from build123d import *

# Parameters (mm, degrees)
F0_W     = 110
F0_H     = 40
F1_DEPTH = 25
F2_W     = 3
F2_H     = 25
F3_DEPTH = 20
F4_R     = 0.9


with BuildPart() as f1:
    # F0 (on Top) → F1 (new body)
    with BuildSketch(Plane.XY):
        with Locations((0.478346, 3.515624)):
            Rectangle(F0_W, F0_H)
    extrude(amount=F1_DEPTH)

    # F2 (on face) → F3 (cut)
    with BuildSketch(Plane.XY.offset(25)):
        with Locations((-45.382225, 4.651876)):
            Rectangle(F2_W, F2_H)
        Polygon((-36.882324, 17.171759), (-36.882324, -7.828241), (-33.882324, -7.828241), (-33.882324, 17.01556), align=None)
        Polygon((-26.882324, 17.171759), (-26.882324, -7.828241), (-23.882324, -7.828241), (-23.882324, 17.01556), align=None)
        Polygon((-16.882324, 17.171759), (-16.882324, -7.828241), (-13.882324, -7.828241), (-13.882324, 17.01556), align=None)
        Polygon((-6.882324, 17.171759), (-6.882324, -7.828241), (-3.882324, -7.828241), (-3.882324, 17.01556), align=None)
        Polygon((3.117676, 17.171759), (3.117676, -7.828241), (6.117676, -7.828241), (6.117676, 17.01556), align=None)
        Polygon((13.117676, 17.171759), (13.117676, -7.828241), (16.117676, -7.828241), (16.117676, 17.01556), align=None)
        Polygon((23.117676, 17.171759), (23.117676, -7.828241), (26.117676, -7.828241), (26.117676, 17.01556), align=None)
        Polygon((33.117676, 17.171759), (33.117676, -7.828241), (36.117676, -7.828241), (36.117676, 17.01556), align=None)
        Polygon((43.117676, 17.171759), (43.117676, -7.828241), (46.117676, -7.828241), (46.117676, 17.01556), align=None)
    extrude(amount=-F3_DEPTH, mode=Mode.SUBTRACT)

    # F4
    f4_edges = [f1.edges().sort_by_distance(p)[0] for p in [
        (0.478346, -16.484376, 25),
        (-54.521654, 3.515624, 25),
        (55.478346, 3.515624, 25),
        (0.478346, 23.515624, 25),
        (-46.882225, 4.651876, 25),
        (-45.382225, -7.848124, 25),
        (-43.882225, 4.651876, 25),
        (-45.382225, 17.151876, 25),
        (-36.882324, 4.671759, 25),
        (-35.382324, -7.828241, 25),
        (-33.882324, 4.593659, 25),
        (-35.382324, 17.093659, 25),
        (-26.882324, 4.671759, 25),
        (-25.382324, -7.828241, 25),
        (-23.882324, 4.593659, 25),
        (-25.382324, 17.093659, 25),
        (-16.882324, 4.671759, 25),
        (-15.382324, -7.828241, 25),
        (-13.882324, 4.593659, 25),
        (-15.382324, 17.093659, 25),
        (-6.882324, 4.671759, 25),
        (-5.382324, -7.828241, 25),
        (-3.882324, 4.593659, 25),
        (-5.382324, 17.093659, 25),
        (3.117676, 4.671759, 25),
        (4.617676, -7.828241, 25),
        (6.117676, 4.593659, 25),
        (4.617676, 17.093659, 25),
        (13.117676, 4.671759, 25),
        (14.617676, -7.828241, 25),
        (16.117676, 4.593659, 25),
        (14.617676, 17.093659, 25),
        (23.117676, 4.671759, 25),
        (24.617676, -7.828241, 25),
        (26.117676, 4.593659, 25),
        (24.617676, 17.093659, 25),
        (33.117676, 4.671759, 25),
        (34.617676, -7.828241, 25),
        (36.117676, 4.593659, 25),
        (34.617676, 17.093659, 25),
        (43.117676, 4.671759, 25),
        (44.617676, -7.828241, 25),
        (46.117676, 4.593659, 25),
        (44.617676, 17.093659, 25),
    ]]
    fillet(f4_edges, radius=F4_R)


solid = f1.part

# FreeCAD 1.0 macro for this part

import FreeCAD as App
import Part
import Sketcher
from FreeCAD import Vector
Q = App.Units.Quantity


def edges_at(feature, points):
    """Names of the edges that pass closest to the given points."""
    edges = feature.Shape.Edges
    near = lambda p: min(range(len(edges)), key=lambda i: edges[i].distToShape(Part.Vertex(*p))[0])
    return sorted({f"Edge{near(p) + 1}" for p in points})

doc = App.newDocument("Part")
body = doc.addObject("PartDesign::Body", "Body")

# Sketch on XY plane
sketch1 = body.newObject("Sketcher::SketchObject", "Sketch")
sketch1.AttachmentSupport = (doc.getObject("XY_Plane"), [""])
sketch1.MapMode = "FlatFace"
sketch1.addGeometry([
    Part.LineSegment(Vector(-55, 24, 0), Vector(-55, -16, 0)),
    Part.LineSegment(Vector(-55, -16, 0), Vector(55, -16, 0)),
    Part.LineSegment(Vector(55, -16, 0), Vector(55, 24, 0)),
    Part.LineSegment(Vector(55, 24, 0), Vector(-55, 24, 0)),
], False)
sketch1.addConstraint([
    Sketcher.Constraint("Coincident", 0, 2, 1, 1),
    Sketcher.Constraint("Coincident", 1, 2, 2, 1),
    Sketcher.Constraint("Coincident", 2, 2, 3, 1),
    Sketcher.Constraint("Coincident", 3, 2, 0, 1),
    Sketcher.Constraint("Vertical", 0),
    Sketcher.Constraint("Horizontal", 1),
    Sketcher.Constraint("Vertical", 2),
    Sketcher.Constraint("Horizontal", 3),
    Sketcher.Constraint("DistanceX", 1, 1, 1, 2, Q("110 mm")),
    Sketcher.Constraint("DistanceY", 0, 2, 0, 1, Q("40 mm")),
    Sketcher.Constraint("DistanceX", 0, 2, -1, 1, Q("54.521654 mm")),
    Sketcher.Constraint("DistanceY", 0, 2, -1, 1, Q("16.484376 mm")),
])
pad1 = body.newObject("PartDesign::Pad", "Pad")
pad1.Profile = sketch1
pad1.Length = 25

# Sketch on XY plane
sketch2 = body.newObject("Sketcher::SketchObject", "Sketch001")
sketch2.AttachmentSupport = (doc.getObject("XY_Plane"), [""])
sketch2.MapMode = "FlatFace"
sketch2.AttachmentOffset = App.Placement(Vector(0, 0, 25), App.Rotation())
sketch2.addGeometry([
    Part.LineSegment(Vector(-46.9, 17.2, 0), Vector(-46.9, -7.8, 0)),  # 0
    Part.LineSegment(Vector(-46.9, -7.8, 0), Vector(-43.9, -7.8, 0)),  # 1
    Part.LineSegment(Vector(-43.9, -7.8, 0), Vector(-43.9, 17.2, 0)),  # 2
    Part.LineSegment(Vector(-43.9, 17.2, 0), Vector(-46.9, 17.2, 0)),  # 3
    Part.LineSegment(Vector(-36.9, 17.2, 0), Vector(-36.9, -7.8, 0)),  # 4
    Part.LineSegment(Vector(-36.9, -7.8, 0), Vector(-33.9, -7.8, 0)),  # 5
    Part.LineSegment(Vector(-33.9, -7.8, 0), Vector(-33.9, 17, 0)),  # 6
    Part.LineSegment(Vector(-33.9, 17, 0), Vector(-36.9, 17.2, 0)),  # 7
    Part.LineSegment(Vector(-26.9, 17.2, 0), Vector(-26.9, -7.8, 0)),  # 8
    Part.LineSegment(Vector(-26.9, -7.8, 0), Vector(-23.9, -7.8, 0)),  # 9
    Part.LineSegment(Vector(-23.9, -7.8, 0), Vector(-23.9, 17, 0)),  # 10
    Part.LineSegment(Vector(-23.9, 17, 0), Vector(-26.9, 17.2, 0)),  # 11
    Part.LineSegment(Vector(-16.9, 17.2, 0), Vector(-16.9, -7.8, 0)),  # 12
    Part.LineSegment(Vector(-16.9, -7.8, 0), Vector(-13.9, -7.8, 0)),  # 13
    Part.LineSegment(Vector(-13.9, -7.8, 0), Vector(-13.9, 17, 0)),  # 14
    Part.LineSegment(Vector(-13.9, 17, 0), Vector(-16.9, 17.2, 0)),  # 15
    Part.LineSegment(Vector(-6.9, 17.2, 0), Vector(-6.9, -7.8, 0)),  # 16
    Part.LineSegment(Vector(-6.9, -7.8, 0), Vector(-3.9, -7.8, 0)),  # 17
    Part.LineSegment(Vector(-3.9, -7.8, 0), Vector(-3.9, 17, 0)),  # 18
    Part.LineSegment(Vector(-3.9, 17, 0), Vector(-6.9, 17.2, 0)),  # 19
    Part.LineSegment(Vector(3.1, 17.2, 0), Vector(3.1, -7.8, 0)),  # 20
    Part.LineSegment(Vector(3.1, -7.8, 0), Vector(6.1, -7.8, 0)),  # 21
    Part.LineSegment(Vector(6.1, -7.8, 0), Vector(6.1, 17, 0)),  # 22
    Part.LineSegment(Vector(6.1, 17, 0), Vector(3.1, 17.2, 0)),  # 23
    Part.LineSegment(Vector(13.1, 17.2, 0), Vector(13.1, -7.8, 0)),  # 24
    Part.LineSegment(Vector(13.1, -7.8, 0), Vector(16.1, -7.8, 0)),  # 25
    Part.LineSegment(Vector(16.1, -7.8, 0), Vector(16.1, 17, 0)),  # 26
    Part.LineSegment(Vector(16.1, 17, 0), Vector(13.1, 17.2, 0)),  # 27
    Part.LineSegment(Vector(23.1, 17.2, 0), Vector(23.1, -7.8, 0)),  # 28
    Part.LineSegment(Vector(23.1, -7.8, 0), Vector(26.1, -7.8, 0)),  # 29
    Part.LineSegment(Vector(26.1, -7.8, 0), Vector(26.1, 17, 0)),  # 30
    Part.LineSegment(Vector(26.1, 17, 0), Vector(23.1, 17.2, 0)),  # 31
    Part.LineSegment(Vector(33.1, 17.2, 0), Vector(33.1, -7.8, 0)),  # 32
    Part.LineSegment(Vector(33.1, -7.8, 0), Vector(36.1, -7.8, 0)),  # 33
    Part.LineSegment(Vector(36.1, -7.8, 0), Vector(36.1, 17, 0)),  # 34
    Part.LineSegment(Vector(36.1, 17, 0), Vector(33.1, 17.2, 0)),  # 35
    Part.LineSegment(Vector(43.1, 17.2, 0), Vector(43.1, -7.8, 0)),  # 36
    Part.LineSegment(Vector(43.1, -7.8, 0), Vector(46.1, -7.8, 0)),  # 37
    Part.LineSegment(Vector(46.1, -7.8, 0), Vector(46.1, 17, 0)),  # 38
    Part.LineSegment(Vector(46.1, 17, 0), Vector(43.1, 17.2, 0)),  # 39
], False)
sketch2.addConstraint([
    Sketcher.Constraint("Coincident", 0, 2, 1, 1),
    Sketcher.Constraint("Coincident", 1, 2, 2, 1),
    Sketcher.Constraint("Coincident", 2, 2, 3, 1),
    Sketcher.Constraint("Coincident", 3, 2, 0, 1),
    Sketcher.Constraint("Coincident", 4, 2, 5, 1),
    Sketcher.Constraint("Coincident", 5, 2, 6, 1),
    Sketcher.Constraint("Coincident", 6, 2, 7, 1),
    Sketcher.Constraint("Coincident", 7, 2, 4, 1),
    Sketcher.Constraint("Coincident", 8, 2, 9, 1),
    Sketcher.Constraint("Coincident", 9, 2, 10, 1),
    Sketcher.Constraint("Coincident", 10, 2, 11, 1),
    Sketcher.Constraint("Coincident", 11, 2, 8, 1),
    Sketcher.Constraint("Coincident", 12, 2, 13, 1),
    Sketcher.Constraint("Coincident", 13, 2, 14, 1),
    Sketcher.Constraint("Coincident", 14, 2, 15, 1),
    Sketcher.Constraint("Coincident", 15, 2, 12, 1),
    Sketcher.Constraint("Coincident", 16, 2, 17, 1),
    Sketcher.Constraint("Coincident", 17, 2, 18, 1),
    Sketcher.Constraint("Coincident", 18, 2, 19, 1),
    Sketcher.Constraint("Coincident", 19, 2, 16, 1),
    Sketcher.Constraint("Coincident", 20, 2, 21, 1),
    Sketcher.Constraint("Coincident", 21, 2, 22, 1),
    Sketcher.Constraint("Coincident", 22, 2, 23, 1),
    Sketcher.Constraint("Coincident", 23, 2, 20, 1),
    Sketcher.Constraint("Coincident", 24, 2, 25, 1),
    Sketcher.Constraint("Coincident", 25, 2, 26, 1),
    Sketcher.Constraint("Coincident", 26, 2, 27, 1),
    Sketcher.Constraint("Coincident", 27, 2, 24, 1),
    Sketcher.Constraint("Coincident", 28, 2, 29, 1),
    Sketcher.Constraint("Coincident", 29, 2, 30, 1),
    Sketcher.Constraint("Coincident", 30, 2, 31, 1),
    Sketcher.Constraint("Coincident", 31, 2, 28, 1),
    Sketcher.Constraint("Coincident", 32, 2, 33, 1),
    Sketcher.Constraint("Coincident", 33, 2, 34, 1),
    Sketcher.Constraint("Coincident", 34, 2, 35, 1),
    Sketcher.Constraint("Coincident", 35, 2, 32, 1),
    Sketcher.Constraint("Coincident", 36, 2, 37, 1),
    Sketcher.Constraint("Coincident", 37, 2, 38, 1),
    Sketcher.Constraint("Coincident", 38, 2, 39, 1),
    Sketcher.Constraint("Coincident", 39, 2, 36, 1),
    Sketcher.Constraint("Vertical", 0),
    Sketcher.Constraint("Horizontal", 1),
    Sketcher.Constraint("Vertical", 2),
    Sketcher.Constraint("Horizontal", 3),
    Sketcher.Constraint("Vertical", 4),
    Sketcher.Constraint("Horizontal", 5),
    Sketcher.Constraint("Vertical", 6),
    Sketcher.Constraint("Vertical", 8),
    Sketcher.Constraint("Horizontal", 9),
    Sketcher.Constraint("Vertical", 10),
    Sketcher.Constraint("Vertical", 12),
    Sketcher.Constraint("Horizontal", 13),
    Sketcher.Constraint("Vertical", 14),
    Sketcher.Constraint("Vertical", 16),
    Sketcher.Constraint("Horizontal", 17),
    Sketcher.Constraint("Vertical", 18),
    Sketcher.Constraint("Vertical", 20),
    Sketcher.Constraint("Horizontal", 21),
    Sketcher.Constraint("Vertical", 22),
    Sketcher.Constraint("Vertical", 24),
    Sketcher.Constraint("Horizontal", 25),
    Sketcher.Constraint("Vertical", 26),
    Sketcher.Constraint("Vertical", 28),
    Sketcher.Constraint("Horizontal", 29),
    Sketcher.Constraint("Vertical", 30),
    Sketcher.Constraint("Vertical", 32),
    Sketcher.Constraint("Horizontal", 33),
    Sketcher.Constraint("Vertical", 34),
    Sketcher.Constraint("Vertical", 36),
    Sketcher.Constraint("Horizontal", 37),
    Sketcher.Constraint("Vertical", 38),
    Sketcher.Constraint("Parallel", 7, 11),
    Sketcher.Constraint("Parallel", 11, 15),
    Sketcher.Constraint("Parallel", 15, 19),
    Sketcher.Constraint("Parallel", 19, 23),
    Sketcher.Constraint("Parallel", 23, 27),
    Sketcher.Constraint("Parallel", 27, 31),
    Sketcher.Constraint("Parallel", 31, 35),
    Sketcher.Constraint("Parallel", 35, 39),
    Sketcher.Constraint("Horizontal", 5, 2, 8, 2),
    Sketcher.Constraint("Horizontal", 6, 2, 10, 2),
    Sketcher.Constraint("Horizontal", 7, 2, 11, 2),
    Sketcher.Constraint("Horizontal", 9, 2, 12, 2),
    Sketcher.Constraint("Horizontal", 10, 2, 14, 2),
    Sketcher.Constraint("Horizontal", 11, 2, 15, 2),
    Sketcher.Constraint("Horizontal", 13, 2, 16, 2),
    Sketcher.Constraint("Horizontal", 14, 2, 18, 2),
    Sketcher.Constraint("Horizontal", 15, 2, 19, 2),
    Sketcher.Constraint("Horizontal", 17, 2, 20, 2),
    Sketcher.Constraint("Horizontal", 18, 2, 22, 2),
    Sketcher.Constraint("Horizontal", 19, 2, 23, 2),
    Sketcher.Constraint("Horizontal", 21, 2, 24, 2),
    Sketcher.Constraint("Horizontal", 22, 2, 26, 2),
    Sketcher.Constraint("Horizontal", 23, 2, 27, 2),
    Sketcher.Constraint("Horizontal", 25, 2, 28, 2),
    Sketcher.Constraint("Horizontal", 26, 2, 30, 2),
    Sketcher.Constraint("Horizontal", 27, 2, 31, 2),
    Sketcher.Constraint("Horizontal", 29, 2, 32, 2),
    Sketcher.Constraint("Horizontal", 30, 2, 34, 2),
    Sketcher.Constraint("Horizontal", 31, 2, 35, 2),
    Sketcher.Constraint("Horizontal", 33, 2, 36, 2),
    Sketcher.Constraint("Horizontal", 34, 2, 38, 2),
    Sketcher.Constraint("Horizontal", 35, 2, 39, 2),
    Sketcher.Constraint("Equal", 3, 5),
    Sketcher.Constraint("Equal", 2, 4),
    Sketcher.Constraint("DistanceX", 1, 1, 1, 2, Q("3 mm")),
    Sketcher.Constraint("DistanceY", 0, 2, 0, 1, Q("25 mm")),
    Sketcher.Constraint("DistanceX", 5, 2, 8, 2, Q("7 mm")),
    Sketcher.Constraint("DistanceX", 9, 2, 12, 2, Q("7 mm")),
    Sketcher.Constraint("DistanceX", 13, 2, 16, 2, Q("7 mm")),
    Sketcher.Constraint("DistanceX", 17, 2, 20, 2, Q("7 mm")),
    Sketcher.Constraint("DistanceX", 21, 2, 24, 2, Q("7 mm")),
    Sketcher.Constraint("DistanceX", 25, 2, 28, 2, Q("7 mm")),
    Sketcher.Constraint("DistanceX", 29, 2, 32, 2, Q("7 mm")),
    Sketcher.Constraint("DistanceX", 33, 2, 36, 2, Q("7 mm")),
    Sketcher.Constraint("DistanceY", 6, 1, 6, 2, Q("24.843801 mm")),
    Sketcher.Constraint("DistanceX", 1, 2, 4, 2, Q("6.999901 mm")),
    Sketcher.Constraint("DistanceY", 4, 2, -1, 1, Q("7.828241 mm")),
    Sketcher.Constraint("DistanceX", 0, 2, -1, 1, Q("46.882225 mm")),
    Sketcher.Constraint("DistanceY", 0, 2, -1, 1, Q("7.848124 mm")),
])
pocket1 = body.newObject("PartDesign::Pocket", "Pocket")
pocket1.Profile = sketch2
pocket1.Length = 20
doc.recompute()

fillet = body.newObject("PartDesign::Fillet", "Fillet")
fillet.Base = (pocket1, edges_at(pocket1, [
    (0.478, -16.484, 25),
    (-54.522, 3.516, 25),
    (55.478, 3.516, 25),
    (0.478, 23.516, 25),
    (-46.882, 4.652, 25),
    (-45.382, -7.848, 25),
    (-43.882, 4.652, 25),
    (-45.382, 17.152, 25),
    (-36.882, 4.672, 25),
    (-35.382, -7.828, 25),
    (-33.882, 4.594, 25),
    (-35.382, 17.094, 25),
    (-26.882, 4.672, 25),
    (-25.382, -7.828, 25),
    (-23.882, 4.594, 25),
    (-25.382, 17.094, 25),
    (-16.882, 4.672, 25),
    (-15.382, -7.828, 25),
    (-13.882, 4.594, 25),
    (-15.382, 17.094, 25),
    (-6.882, 4.672, 25),
    (-5.382, -7.828, 25),
    (-3.882, 4.594, 25),
    (-5.382, 17.094, 25),
    (3.118, 4.672, 25),
    (4.618, -7.828, 25),
    (6.118, 4.594, 25),
    (4.618, 17.094, 25),
    (13.118, 4.672, 25),
    (14.618, -7.828, 25),
    (16.118, 4.594, 25),
    (14.618, 17.094, 25),
    (23.118, 4.672, 25),
    (24.618, -7.828, 25),
    (26.118, 4.594, 25),
    (24.618, 17.094, 25),
    (33.118, 4.672, 25),
    (34.618, -7.828, 25),
    (36.118, 4.594, 25),
    (34.618, 17.094, 25),
    (43.118, 4.672, 25),
    (44.618, -7.828, 25),
    (46.118, 4.594, 25),
    (44.618, 17.094, 25),
]))
fillet.Radius = 0.9

doc.recompute()
